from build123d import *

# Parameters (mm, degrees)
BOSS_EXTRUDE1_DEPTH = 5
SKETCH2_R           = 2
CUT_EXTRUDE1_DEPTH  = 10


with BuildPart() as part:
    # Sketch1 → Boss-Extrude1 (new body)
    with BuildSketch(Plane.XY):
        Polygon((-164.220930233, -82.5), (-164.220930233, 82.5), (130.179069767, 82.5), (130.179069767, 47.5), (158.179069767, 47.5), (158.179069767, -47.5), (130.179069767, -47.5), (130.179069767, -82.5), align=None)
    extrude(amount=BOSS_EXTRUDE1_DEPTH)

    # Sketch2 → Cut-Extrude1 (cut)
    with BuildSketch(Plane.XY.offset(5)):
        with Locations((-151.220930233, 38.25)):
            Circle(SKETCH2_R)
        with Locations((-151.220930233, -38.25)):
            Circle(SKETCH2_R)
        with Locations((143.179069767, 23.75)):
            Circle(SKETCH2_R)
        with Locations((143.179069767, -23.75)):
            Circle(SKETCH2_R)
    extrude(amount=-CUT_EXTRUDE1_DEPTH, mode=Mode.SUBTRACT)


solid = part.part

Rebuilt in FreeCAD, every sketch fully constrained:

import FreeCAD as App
import Part
import Sketcher
from FreeCAD import Vector


def add_polygon(sketch, points):
    """Adds a closed chain of lines whose ends are joined by coincident constraints."""
    first, n = sketch.GeometryCount, len(points)
    for a, b in zip(points, points[1:] + points[:1]):
        sketch.addGeometry(Part.LineSegment(App.Vector(*a, 0), App.Vector(*b, 0)), False)
    for i in range(n):
        sketch.addConstraint(Sketcher.Constraint("Coincident", first + i, 2, first + (i + 1) % n, 1))

doc = App.newDocument("Part")
body = doc.addObject("PartDesign::Body", "Body")

sketch1 = body.newObject("Sketcher::SketchObject", "Sketch")
sketch1.AttachmentSupport = (doc.getObject("XY_Plane"), [""])
sketch1.MapMode = "FlatFace"
add_polygon(sketch1, [(-164.22093, 82.5), (-164.22093, -82.5), (130.17907, -82.5), (130.17907, -47.5), (158.17907, -47.5), (158.17907, 47.5), (130.17907, 47.5), (130.17907, 82.5)])
sketch1.addConstraint([
    Sketcher.Constraint("Vertical", 0),
    Sketcher.Constraint("Horizontal", 1),
    Sketcher.Constraint("Vertical", 2),
    Sketcher.Constraint("Horizontal", 3),
    Sketcher.Constraint("Vertical", 4),
    Sketcher.Constraint("Horizontal", 5),
    Sketcher.Constraint("Vertical", 6),
    Sketcher.Constraint("Horizontal", 7),
    Sketcher.Constraint("Symmetric", 2, 2, 5, 2, -1),
    Sketcher.Constraint("Equal", 2, 6),
    Sketcher.Constraint("DistanceX", 3, 1, 3, 2, 28.0),
    Sketcher.Constraint("DistanceY", 0, 2, 0, 1, 165.0),
    Sketcher.Constraint("DistanceY", 2, 1, 2, 2, 35.0),
    Sketcher.Constraint("DistanceX", 1, 1, 1, 2, 294.4),
    Sketcher.Constraint("DistanceX", 0, 2, -1, 1, 164.22093),
])
pad1 = body.newObject("PartDesign::Pad", "Pad")
pad1.Profile = sketch1
pad1.Length = 5

sketch2 = body.newObject("Sketcher::SketchObject", "Sketch001")
sketch2.AttachmentSupport = (doc.getObject("XY_Plane"), [""])
sketch2.MapMode = "FlatFace"
sketch2.AttachmentOffset = App.Placement(Vector(0, 0, 5), App.Rotation())
sketch2.addGeometry([
    Part.Circle(Vector(-151.22093, 38.25, 0), Vector(0, 0, 1), 2),
    Part.Circle(Vector(-151.22093, -38.25, 0), Vector(0, 0, 1), 2),
    Part.Circle(Vector(143.17907, 23.75, 0), Vector(0, 0, 1), 2),
    Part.Circle(Vector(143.17907, -23.75, 0), Vector(0, 0, 1), 2),
], False)
sketch2.addConstraint([
    Sketcher.Constraint("Equal", 0, 1),
    Sketcher.Constraint("Equal", 1, 2),
    Sketcher.Constraint("Equal", 2, 3),
    Sketcher.Constraint("Symmetric", 0, 3, 1, 3, -1),
    Sketcher.Constraint("Symmetric", 2, 3, 3, 3, -1),
    Sketcher.Constraint("Diameter", 0, 4.0),
    Sketcher.Constraint("DistanceY", 1, 3, 2, 3, 62.0),
    Sketcher.Constraint("DistanceY", 1, 3, 0, 3, 76.5),
    Sketcher.Constraint("DistanceX", 0, 3, 2, 3, 294.4),
    Sketcher.Constraint("DistanceX", 0, 3, -1, 1, 151.22093),
])
pocket1 = body.newObject("PartDesign::Pocket", "Pocket")
pocket1.Profile = sketch2
pocket1.Length = 10

doc.recompute()
